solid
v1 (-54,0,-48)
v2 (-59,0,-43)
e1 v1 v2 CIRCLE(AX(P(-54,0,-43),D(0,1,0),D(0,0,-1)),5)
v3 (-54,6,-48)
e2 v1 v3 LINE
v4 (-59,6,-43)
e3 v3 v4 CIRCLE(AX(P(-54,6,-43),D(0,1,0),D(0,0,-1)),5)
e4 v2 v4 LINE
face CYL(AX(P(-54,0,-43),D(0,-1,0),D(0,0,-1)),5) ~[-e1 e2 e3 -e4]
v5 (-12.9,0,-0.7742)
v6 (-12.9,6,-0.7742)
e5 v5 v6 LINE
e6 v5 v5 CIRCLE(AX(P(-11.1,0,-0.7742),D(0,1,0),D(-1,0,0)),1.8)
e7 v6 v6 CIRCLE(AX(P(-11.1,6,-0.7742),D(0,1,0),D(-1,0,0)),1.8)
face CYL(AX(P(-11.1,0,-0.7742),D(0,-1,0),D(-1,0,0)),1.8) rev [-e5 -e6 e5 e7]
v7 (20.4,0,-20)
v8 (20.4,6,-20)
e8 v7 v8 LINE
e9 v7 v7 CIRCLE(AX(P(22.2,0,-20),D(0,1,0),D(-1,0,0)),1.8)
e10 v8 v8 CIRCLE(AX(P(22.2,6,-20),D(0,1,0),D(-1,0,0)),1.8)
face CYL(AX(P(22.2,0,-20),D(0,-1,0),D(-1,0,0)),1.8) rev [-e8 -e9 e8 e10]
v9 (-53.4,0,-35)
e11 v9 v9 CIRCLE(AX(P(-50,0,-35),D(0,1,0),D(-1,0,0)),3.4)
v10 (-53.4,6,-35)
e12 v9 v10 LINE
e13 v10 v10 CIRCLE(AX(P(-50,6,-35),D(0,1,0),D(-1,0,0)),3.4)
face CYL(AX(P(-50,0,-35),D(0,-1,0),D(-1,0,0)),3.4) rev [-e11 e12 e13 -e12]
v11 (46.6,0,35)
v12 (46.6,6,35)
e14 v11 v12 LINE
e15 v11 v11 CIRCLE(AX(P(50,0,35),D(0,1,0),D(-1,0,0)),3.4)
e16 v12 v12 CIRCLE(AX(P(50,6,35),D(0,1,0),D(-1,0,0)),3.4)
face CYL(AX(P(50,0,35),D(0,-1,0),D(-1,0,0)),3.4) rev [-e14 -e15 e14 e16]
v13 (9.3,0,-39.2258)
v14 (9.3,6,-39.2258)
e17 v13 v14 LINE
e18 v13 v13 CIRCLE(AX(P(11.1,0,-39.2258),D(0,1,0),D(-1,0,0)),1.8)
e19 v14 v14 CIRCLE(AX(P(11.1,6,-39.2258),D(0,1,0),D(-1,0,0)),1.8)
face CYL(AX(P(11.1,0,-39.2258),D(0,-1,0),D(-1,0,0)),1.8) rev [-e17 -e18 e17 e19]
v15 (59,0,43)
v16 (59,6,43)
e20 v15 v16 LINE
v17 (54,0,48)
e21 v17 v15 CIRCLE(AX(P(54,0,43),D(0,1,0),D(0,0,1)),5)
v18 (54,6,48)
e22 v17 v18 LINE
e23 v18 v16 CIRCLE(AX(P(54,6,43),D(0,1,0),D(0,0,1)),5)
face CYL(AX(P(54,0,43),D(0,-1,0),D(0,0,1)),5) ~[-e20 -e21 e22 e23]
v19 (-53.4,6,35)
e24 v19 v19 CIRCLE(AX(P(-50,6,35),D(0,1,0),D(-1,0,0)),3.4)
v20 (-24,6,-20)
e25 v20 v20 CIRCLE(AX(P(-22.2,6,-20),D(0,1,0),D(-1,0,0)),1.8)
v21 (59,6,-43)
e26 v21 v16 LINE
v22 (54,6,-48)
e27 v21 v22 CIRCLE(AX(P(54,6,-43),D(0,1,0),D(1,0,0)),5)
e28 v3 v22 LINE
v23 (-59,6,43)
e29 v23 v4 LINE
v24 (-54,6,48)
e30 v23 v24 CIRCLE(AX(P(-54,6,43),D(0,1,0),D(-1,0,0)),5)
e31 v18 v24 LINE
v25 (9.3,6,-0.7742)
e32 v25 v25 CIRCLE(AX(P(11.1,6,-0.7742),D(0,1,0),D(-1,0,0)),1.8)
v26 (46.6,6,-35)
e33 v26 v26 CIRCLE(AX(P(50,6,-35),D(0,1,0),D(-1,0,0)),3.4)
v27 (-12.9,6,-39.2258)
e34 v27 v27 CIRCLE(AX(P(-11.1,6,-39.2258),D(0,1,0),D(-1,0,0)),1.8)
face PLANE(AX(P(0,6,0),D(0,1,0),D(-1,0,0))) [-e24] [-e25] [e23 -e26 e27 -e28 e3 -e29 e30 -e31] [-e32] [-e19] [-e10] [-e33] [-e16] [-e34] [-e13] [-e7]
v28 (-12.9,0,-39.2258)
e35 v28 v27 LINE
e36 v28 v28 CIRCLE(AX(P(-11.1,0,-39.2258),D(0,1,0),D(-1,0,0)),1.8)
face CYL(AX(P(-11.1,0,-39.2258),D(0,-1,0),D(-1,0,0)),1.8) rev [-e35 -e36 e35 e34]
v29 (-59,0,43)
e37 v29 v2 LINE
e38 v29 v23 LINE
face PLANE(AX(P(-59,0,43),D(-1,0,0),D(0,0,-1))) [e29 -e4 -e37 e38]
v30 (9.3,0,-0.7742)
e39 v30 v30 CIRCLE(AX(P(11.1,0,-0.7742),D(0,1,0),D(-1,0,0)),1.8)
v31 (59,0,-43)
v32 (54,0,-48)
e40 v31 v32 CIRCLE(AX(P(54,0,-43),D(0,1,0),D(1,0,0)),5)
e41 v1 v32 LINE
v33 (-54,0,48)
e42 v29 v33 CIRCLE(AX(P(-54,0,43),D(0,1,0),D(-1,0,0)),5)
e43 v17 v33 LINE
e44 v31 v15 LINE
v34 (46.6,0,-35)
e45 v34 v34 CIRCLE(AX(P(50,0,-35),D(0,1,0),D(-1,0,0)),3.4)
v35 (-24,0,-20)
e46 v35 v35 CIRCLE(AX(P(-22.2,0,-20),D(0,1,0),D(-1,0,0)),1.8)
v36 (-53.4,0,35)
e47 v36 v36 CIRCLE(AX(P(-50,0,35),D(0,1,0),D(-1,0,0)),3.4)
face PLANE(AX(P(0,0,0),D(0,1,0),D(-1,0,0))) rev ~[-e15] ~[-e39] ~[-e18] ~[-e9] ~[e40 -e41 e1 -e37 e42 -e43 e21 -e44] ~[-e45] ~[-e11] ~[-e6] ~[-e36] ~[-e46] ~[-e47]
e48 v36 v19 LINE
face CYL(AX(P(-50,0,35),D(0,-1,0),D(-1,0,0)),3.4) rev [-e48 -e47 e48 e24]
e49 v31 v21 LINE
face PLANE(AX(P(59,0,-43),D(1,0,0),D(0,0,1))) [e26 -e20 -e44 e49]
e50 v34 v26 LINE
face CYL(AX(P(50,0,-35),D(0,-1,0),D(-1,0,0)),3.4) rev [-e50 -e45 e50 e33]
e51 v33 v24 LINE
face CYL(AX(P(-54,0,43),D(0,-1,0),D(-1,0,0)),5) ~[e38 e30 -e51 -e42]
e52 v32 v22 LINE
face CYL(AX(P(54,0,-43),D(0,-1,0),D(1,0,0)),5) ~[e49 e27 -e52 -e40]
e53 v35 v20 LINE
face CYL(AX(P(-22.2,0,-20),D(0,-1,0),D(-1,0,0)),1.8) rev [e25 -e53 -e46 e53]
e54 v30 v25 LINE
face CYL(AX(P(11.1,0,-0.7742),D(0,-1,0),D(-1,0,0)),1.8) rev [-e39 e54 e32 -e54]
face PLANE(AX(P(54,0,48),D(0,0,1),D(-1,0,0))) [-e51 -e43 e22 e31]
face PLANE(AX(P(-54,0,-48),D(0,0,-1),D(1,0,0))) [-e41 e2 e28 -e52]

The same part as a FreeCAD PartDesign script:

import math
import FreeCAD as App
import Part
import Sketcher

V = App.Vector

doc = App.newDocument("Part")
body = doc.addObject("PartDesign::Body", "Body")

# Sketch on XZ plane
sketch1 = body.newObject("Sketcher::SketchObject", "Sketch")
sketch1.AttachmentSupport = (doc.getObject("XZ_Plane"), [""])
sketch1.MapMode = "FlatFace"
sketch1.addGeometry([
    Part.LineSegment(V(54, -48, 0), V(-54, -48, 0)),  # 0
    Part.ArcOfCircle(Part.Circle(V(-54, -43, 0), V(0, 0, 1), 5), math.radians(180), math.radians(270)),  # 1
    Part.LineSegment(V(-59, -43, 0), V(-59, 43, 0)),  # 2
    Part.ArcOfCircle(Part.Circle(V(-54, 43, 0), V(0, 0, 1), 5), math.radians(90), math.radians(180)),  # 3
    Part.LineSegment(V(-54, 48, 0), V(54, 48, 0)),  # 4
    Part.ArcOfCircle(Part.Circle(V(54, 43, 0), V(0, 0, 1), 5), math.radians(0), math.radians(90)),  # 5
    Part.LineSegment(V(59, 43, 0), V(59, -43, 0)),  # 6
    Part.ArcOfCircle(Part.Circle(V(54, -43, 0), V(0, 0, 1), 5), math.radians(-90), math.radians(0)),  # 7
    Part.Circle(V(50, -35, 0), V(0, 0, 1), 3.4),  # 8
    Part.Circle(V(11.1, -39.2, 0), V(0, 0, 1), 1.8),  # 9
    Part.Circle(V(22.2, -20, 0), V(0, 0, 1), 1.8),  # 10
    Part.Circle(V(11.1, -0.8, 0), V(0, 0, 1), 1.8),  # 11
    Part.Circle(V(-11.1, -39.2, 0), V(0, 0, 1), 1.8),  # 12
    Part.Circle(V(-50, -35, 0), V(0, 0, 1), 3.4),  # 13
    Part.Circle(V(-22.2, -20, 0), V(0, 0, 1), 1.8),  # 14
    Part.Circle(V(-11.1, -0.8, 0), V(0, 0, 1), 1.8),  # 15
    Part.Circle(V(50, 35, 0), V(0, 0, 1), 3.4),  # 16
    Part.Circle(V(-50, 35, 0), V(0, 0, 1), 3.4),  # 17
], False)
sketch1.addConstraint([
    Sketcher.Constraint("Tangent", 0, 2, 1, 2),
    Sketcher.Constraint("Tangent", 1, 1, 2, 1),
    Sketcher.Constraint("Tangent", 2, 2, 3, 2),
    Sketcher.Constraint("Tangent", 3, 1, 4, 1),
    Sketcher.Constraint("Tangent", 4, 2, 5, 2),
    Sketcher.Constraint("Tangent", 5, 1, 6, 1),
    Sketcher.Constraint("Tangent", 6, 2, 7, 2),
    Sketcher.Constraint("Tangent", 7, 1, 0, 1),
    Sketcher.Constraint("Horizontal", 0),
    Sketcher.Constraint("Vertical", 2),
    Sketcher.Constraint("Horizontal", 4),
    Sketcher.Constraint("Vertical", 6),
    Sketcher.Constraint("Equal", 1, 3),
    Sketcher.Constraint("Equal", 3, 5),
    Sketcher.Constraint("Equal", 5, 7),
    Sketcher.Constraint("Equal", 9, 10),
    Sketcher.Constraint("Equal", 10, 11),
    Sketcher.Constraint("Equal", 11, 12),
    Sketcher.Constraint("Equal", 8, 13),
    Sketcher.Constraint("Equal", 12, 14),
    Sketcher.Constraint("Equal", 14, 15),
    Sketcher.Constraint("Equal", 13, 16),
    Sketcher.Constraint("Equal", 16, 17),
    Sketcher.Constraint("Symmetric", 1, 3, 5, 3, -1, 1),
    Sketcher.Constraint("Symmetric", 13, 3, 16, 3, -1, 1),
    Sketcher.Constraint("Symmetric", 8, 3, 17, 3, -1, 1),
    Sketcher.Constraint("Symmetric", 9, 3, 12, 3, -2),
    Sketcher.Constraint("Symmetric", 8, 3, 13, 3, -2),
    Sketcher.Constraint("Symmetric", 10, 3, 14, 3, -2),
    Sketcher.Constraint("Symmetric", 11, 3, 15, 3, -2),
    Sketcher.Constraint("Vertical", 9, 3, 11, 3),
    Sketcher.Constraint("Radius", 1, 5.0),
    Sketcher.Constraint("Diameter", 8, 6.8),
    Sketcher.Constraint("Diameter", 9, 3.6),
    Sketcher.Constraint("DistanceY", 8, 3, 16, 3, 70.0),
    Sketcher.Constraint("DistanceX", 0, 2, 0, 1, 108.0),
    Sketcher.Constraint("DistanceY", 2, 1, 2, 2, 86.0),
    Sketcher.Constraint("DistanceX", -1, 1, 8, 3, 50.0),
    Sketcher.Constraint("DistanceY", 10, 3, -1, 1, 20.0),
    Sketcher.Constraint("DistanceX", -1, 1, 9, 3, 11.1),
    Sketcher.Constraint("DistanceX", -1, 1, 10, 3, 22.2),
    Sketcher.Constraint("DistanceY", 9, 3, -1, 1, 39.2258),
    Sketcher.Constraint("DistanceY", 11, 3, -1, 1, 0.7742),
])
pad1 = body.newObject("PartDesign::Pad", "Pad")
pad1.Profile = sketch1
pad1.Length = 6
pad1.Reversed = True

doc.recompute()
